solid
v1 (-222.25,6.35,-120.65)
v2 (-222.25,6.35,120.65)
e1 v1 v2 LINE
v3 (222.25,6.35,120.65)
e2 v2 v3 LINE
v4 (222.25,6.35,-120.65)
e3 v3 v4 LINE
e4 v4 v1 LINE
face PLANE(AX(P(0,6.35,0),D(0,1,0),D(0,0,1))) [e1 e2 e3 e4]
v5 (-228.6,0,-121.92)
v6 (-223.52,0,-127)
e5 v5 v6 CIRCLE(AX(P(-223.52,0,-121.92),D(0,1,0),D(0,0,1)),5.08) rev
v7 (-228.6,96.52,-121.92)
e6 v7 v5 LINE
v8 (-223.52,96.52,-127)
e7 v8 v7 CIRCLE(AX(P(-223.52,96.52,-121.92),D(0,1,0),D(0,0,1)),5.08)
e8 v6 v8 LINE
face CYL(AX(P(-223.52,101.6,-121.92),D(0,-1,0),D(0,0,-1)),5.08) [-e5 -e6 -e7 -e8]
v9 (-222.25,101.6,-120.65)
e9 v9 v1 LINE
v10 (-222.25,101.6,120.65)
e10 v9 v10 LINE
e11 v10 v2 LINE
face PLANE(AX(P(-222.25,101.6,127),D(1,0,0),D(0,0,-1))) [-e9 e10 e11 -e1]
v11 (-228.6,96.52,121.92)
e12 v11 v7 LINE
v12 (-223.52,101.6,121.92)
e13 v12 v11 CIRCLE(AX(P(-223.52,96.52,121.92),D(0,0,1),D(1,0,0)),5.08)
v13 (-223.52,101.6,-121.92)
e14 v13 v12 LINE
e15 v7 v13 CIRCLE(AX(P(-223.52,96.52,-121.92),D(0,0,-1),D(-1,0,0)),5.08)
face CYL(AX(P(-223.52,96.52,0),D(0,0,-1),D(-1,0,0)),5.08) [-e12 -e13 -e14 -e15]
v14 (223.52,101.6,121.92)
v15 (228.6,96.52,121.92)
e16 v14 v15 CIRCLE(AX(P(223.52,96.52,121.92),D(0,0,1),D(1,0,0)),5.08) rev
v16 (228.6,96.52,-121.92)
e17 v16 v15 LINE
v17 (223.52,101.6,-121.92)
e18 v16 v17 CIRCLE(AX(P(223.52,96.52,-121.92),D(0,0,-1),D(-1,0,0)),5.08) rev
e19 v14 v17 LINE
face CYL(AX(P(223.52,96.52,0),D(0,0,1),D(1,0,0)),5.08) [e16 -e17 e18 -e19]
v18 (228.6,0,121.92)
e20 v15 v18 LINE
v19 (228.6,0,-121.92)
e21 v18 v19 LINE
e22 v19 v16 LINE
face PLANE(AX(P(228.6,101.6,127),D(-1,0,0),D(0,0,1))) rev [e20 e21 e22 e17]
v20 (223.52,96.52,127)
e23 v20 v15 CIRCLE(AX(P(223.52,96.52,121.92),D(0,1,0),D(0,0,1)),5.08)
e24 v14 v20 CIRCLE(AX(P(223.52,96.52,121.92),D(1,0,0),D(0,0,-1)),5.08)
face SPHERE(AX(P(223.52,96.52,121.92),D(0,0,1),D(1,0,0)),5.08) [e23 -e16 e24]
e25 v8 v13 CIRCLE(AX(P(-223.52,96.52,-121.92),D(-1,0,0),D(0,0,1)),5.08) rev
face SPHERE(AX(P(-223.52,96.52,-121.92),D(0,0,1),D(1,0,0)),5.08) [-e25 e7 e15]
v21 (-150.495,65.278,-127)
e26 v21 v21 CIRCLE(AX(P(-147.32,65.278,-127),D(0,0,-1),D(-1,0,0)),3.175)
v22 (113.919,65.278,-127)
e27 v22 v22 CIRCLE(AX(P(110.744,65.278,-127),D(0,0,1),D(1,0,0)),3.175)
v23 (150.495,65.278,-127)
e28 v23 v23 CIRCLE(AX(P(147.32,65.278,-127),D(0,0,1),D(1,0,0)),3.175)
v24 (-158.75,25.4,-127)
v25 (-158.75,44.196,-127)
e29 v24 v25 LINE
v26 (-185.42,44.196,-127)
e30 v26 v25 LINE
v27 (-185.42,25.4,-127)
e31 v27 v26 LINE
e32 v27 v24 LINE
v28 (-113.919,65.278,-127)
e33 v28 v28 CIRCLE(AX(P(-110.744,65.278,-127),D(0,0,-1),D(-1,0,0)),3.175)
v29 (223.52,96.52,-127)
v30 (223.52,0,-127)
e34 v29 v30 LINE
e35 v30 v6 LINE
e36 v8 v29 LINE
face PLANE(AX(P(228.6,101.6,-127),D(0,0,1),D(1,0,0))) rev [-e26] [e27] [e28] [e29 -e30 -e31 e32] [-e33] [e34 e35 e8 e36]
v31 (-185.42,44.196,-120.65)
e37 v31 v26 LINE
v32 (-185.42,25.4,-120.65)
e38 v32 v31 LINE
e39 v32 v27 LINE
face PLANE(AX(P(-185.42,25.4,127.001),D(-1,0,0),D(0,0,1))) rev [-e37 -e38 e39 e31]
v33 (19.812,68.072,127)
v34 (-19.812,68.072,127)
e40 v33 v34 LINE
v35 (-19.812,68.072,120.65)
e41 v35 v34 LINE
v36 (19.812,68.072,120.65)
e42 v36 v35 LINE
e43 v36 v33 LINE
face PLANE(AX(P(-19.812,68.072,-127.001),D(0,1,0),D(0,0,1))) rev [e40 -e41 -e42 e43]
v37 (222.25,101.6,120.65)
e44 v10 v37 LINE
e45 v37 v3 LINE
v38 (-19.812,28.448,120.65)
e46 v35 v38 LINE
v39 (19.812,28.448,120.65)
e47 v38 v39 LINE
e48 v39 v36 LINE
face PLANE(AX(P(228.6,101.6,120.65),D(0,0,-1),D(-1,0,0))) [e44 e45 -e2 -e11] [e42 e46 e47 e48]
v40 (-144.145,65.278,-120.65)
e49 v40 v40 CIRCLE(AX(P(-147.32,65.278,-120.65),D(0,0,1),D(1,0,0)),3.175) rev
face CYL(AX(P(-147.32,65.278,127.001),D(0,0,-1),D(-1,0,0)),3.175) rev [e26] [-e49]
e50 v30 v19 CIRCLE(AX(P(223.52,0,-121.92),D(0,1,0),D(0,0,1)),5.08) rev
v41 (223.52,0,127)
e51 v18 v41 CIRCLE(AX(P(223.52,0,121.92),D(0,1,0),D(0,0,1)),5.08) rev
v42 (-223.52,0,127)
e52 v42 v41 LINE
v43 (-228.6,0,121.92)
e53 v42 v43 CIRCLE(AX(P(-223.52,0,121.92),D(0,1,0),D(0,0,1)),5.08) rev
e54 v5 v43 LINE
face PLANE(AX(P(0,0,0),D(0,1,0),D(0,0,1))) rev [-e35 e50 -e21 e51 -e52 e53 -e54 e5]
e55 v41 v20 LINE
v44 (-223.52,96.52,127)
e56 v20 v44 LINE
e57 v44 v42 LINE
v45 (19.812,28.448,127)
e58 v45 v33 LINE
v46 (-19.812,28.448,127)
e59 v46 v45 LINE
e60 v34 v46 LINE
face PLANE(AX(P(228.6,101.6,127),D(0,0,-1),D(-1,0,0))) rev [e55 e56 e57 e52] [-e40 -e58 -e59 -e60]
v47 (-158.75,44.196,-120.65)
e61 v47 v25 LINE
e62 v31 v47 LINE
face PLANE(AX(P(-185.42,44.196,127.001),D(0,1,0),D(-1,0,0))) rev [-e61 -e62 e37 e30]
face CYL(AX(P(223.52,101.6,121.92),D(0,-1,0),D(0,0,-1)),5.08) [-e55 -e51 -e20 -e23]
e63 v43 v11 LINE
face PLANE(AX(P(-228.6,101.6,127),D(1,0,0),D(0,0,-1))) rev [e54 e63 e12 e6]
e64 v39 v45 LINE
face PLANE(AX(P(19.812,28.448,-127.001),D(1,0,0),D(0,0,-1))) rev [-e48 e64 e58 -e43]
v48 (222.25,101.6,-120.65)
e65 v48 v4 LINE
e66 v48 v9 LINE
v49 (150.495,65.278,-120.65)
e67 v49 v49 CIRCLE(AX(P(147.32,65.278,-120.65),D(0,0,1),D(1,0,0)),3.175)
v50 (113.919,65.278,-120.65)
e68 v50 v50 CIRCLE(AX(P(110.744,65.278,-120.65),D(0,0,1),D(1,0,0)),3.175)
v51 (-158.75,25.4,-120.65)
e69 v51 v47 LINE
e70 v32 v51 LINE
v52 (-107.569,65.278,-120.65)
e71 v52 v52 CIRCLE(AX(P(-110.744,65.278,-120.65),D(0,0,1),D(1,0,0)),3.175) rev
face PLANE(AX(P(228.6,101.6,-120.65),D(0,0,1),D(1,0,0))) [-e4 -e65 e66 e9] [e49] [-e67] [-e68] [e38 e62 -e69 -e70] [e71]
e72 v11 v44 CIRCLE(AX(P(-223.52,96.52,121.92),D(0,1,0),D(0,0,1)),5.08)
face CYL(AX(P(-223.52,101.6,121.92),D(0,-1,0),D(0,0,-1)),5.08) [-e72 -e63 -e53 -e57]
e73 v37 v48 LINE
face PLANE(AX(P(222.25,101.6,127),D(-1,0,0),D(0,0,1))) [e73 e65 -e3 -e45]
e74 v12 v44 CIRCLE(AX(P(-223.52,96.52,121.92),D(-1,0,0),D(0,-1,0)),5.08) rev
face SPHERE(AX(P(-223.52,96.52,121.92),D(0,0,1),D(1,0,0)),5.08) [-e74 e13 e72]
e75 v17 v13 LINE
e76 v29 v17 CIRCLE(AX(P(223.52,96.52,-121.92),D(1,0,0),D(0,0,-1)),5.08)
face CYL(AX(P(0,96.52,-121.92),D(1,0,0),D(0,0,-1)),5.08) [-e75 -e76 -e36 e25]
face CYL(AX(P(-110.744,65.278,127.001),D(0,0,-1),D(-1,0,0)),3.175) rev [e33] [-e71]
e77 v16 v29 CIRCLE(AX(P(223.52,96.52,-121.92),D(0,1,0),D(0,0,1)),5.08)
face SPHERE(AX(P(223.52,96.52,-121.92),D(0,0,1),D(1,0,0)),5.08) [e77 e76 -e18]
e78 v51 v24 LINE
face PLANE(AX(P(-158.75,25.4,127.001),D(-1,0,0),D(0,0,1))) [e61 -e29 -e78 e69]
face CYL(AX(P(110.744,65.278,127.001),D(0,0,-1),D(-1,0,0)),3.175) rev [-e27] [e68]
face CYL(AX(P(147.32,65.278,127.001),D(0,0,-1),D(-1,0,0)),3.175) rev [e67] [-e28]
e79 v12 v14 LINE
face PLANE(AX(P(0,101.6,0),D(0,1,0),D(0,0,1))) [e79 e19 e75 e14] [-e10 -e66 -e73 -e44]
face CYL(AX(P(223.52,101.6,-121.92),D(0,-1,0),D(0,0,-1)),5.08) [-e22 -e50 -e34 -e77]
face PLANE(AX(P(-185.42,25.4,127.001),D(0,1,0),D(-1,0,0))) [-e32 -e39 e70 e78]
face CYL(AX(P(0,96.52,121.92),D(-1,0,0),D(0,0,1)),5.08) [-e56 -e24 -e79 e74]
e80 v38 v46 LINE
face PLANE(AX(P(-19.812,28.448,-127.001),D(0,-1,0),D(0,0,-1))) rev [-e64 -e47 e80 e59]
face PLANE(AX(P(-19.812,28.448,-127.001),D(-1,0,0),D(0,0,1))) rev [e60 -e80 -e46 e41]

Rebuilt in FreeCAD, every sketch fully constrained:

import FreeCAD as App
import Part
import Sketcher
from FreeCAD import Vector
Q = App.Units.Quantity


def edges_at(feature, points):
    """Names of the edges that pass closest to the given points."""
    edges = feature.Shape.Edges
    near = lambda p: min(range(len(edges)), key=lambda i: edges[i].distToShape(Part.Vertex(*p))[0])
    return sorted({f"Edge{near(p) + 1}" for p in points})


def faces_at(feature, points):
    """Names of the faces that lie closest to the given points."""
    faces = feature.Shape.Faces
    near = lambda p: min(range(len(faces)), key=lambda i: faces[i].distToShape(Part.Vertex(*p))[0])
    return sorted({f"Face{near(p) + 1}" for p in points})

doc = App.newDocument("Part")
body = doc.addObject("PartDesign::Body", "Body")

sketch1 = body.newObject("Sketcher::SketchObject", "Sketch")
sketch1.AttachmentSupport = (doc.getObject("XZ_Plane"), [""])
sketch1.MapMode = "FlatFace"
sketch1.addGeometry([
    Part.LineSegment(Vector(-229, -127, 0), Vector(-229, 127, 0)),
    Part.LineSegment(Vector(-229, 127, 0), Vector(229, 127, 0)),
    Part.LineSegment(Vector(229, 127, 0), Vector(229, -127, 0)),
    Part.LineSegment(Vector(229, -127, 0), Vector(-229, -127, 0)),
], False)
sketch1.addConstraint([
    Sketcher.Constraint("Coincident", 0, 2, 1, 1),
    Sketcher.Constraint("Coincident", 1, 2, 2, 1),
    Sketcher.Constraint("Coincident", 2, 2, 3, 1),
    Sketcher.Constraint("Coincident", 3, 2, 0, 1),
    Sketcher.Constraint("Vertical", 0),
    Sketcher.Constraint("Horizontal", 1),
    Sketcher.Constraint("Vertical", 2),
    Sketcher.Constraint("Horizontal", 3),
    Sketcher.Constraint("Symmetric", 0, 2, 2, 2, -1, 1),
    Sketcher.Constraint("DistanceX", 1, 1, 1, 2, Q("18 in")),
    Sketcher.Constraint("DistanceY", 0, 1, 0, 2, Q("10 in")),
])
pad1 = body.newObject("PartDesign::Pad", "Pad")
pad1.Profile = sketch1
pad1.Length = Q("4 in")
pad1.Reversed = True
doc.recompute()

thickness = body.newObject("PartDesign::Thickness", "Thickness")
thickness.Base = (pad1, faces_at(pad1, [(0, 101.6, 0)]))
thickness.Value = Q("0.25 in")
thickness.Reversed = True
thickness.Join = "Intersection"
doc.recompute()

fillet = body.newObject("PartDesign::Fillet", "Fillet")
fillet.Base = (thickness, edges_at(thickness, [
    (228.6, 101.6, 0),
    (0, 101.6, -127),
    (-228.6, 101.6, 0),
    (0, 101.6, 127),
    (-228.6, 50.8, -127),
    (228.6, 50.8, -127),
    (228.6, 50.8, 127),
    (-228.6, 50.8, 127),
]))
fillet.Radius = Q("0.2 in")

sketch2 = body.newObject("Sketcher::SketchObject", "Sketch001")
sketch2.AttachmentSupport = (doc.getObject("XY_Plane"), [""])
sketch2.MapMode = "FlatFace"
sketch2.AttachmentOffset = App.Placement(Vector(0, 0, 5 * 25.4), App.Rotation())
sketch2.addGeometry([
    Part.LineSegment(Vector(-20, 68, 0), Vector(-20, 28, 0)),
    Part.LineSegment(Vector(-20, 28, 0), Vector(20, 28, 0)),
    Part.LineSegment(Vector(20, 28, 0), Vector(20, 68, 0)),
    Part.LineSegment(Vector(20, 68, 0), Vector(-20, 68, 0)),
], False)
sketch2.addConstraint([
    Sketcher.Constraint("Coincident", 0, 2, 1, 1),
    Sketcher.Constraint("Coincident", 1, 2, 2, 1),
    Sketcher.Constraint("Coincident", 2, 2, 3, 1),
    Sketcher.Constraint("Coincident", 3, 2, 0, 1),
    Sketcher.Constraint("Vertical", 0),
    Sketcher.Constraint("Horizontal", 1),
    Sketcher.Constraint("Vertical", 2),
    Sketcher.Constraint("Horizontal", 3),
    Sketcher.Constraint("Equal", 3, 0),
    Sketcher.Constraint("DistanceX", 1, 1, 1, 2, Q("1.56 in")),
    Sketcher.Constraint("DistanceX", 0, 2, -1, 1, Q("0.78 in")),
    Sketcher.Constraint("DistanceY", -1, 1, 0, 2, Q("1.12 in")),
])
pocket1 = body.newObject("PartDesign::Pocket", "Pocket")
pocket1.Profile = sketch2
pocket1.Type = "UpToFirst"

sketch3 = body.newObject("Sketcher::SketchObject", "Sketch002")
sketch3.AttachmentSupport = (doc.getObject("XY_Plane"), [""])
sketch3.MapMode = "FlatFace"
sketch3.AttachmentOffset = App.Placement(Vector(0, 0, -5 * 25.4), App.Rotation())
sketch3.addGeometry(Part.Circle(Vector(-147.3, 65.3, 0), Vector(0, 0, 1), 3.2), False)
sketch3.addConstraint([
    Sketcher.Constraint("Diameter", 0, Q("0.25 in")),
    Sketcher.Constraint("DistanceX", 0, 3, -1, 1, Q("5.8 in")),
    Sketcher.Constraint("DistanceY", -1, 1, 0, 3, Q("2.57 in")),
])
pocket2 = body.newObject("PartDesign::Pocket", "Pocket001")
pocket2.Profile = sketch3
pocket2.Type = "UpToFirst"
pocket2.Reversed = True

sketch4 = body.newObject("Sketcher::SketchObject", "Sketch003")
sketch4.AttachmentSupport = (doc.getObject("XY_Plane"), [""])
sketch4.MapMode = "FlatFace"
sketch4.AttachmentOffset = App.Placement(Vector(0, 0, -5 * 25.4), App.Rotation())
sketch4.addGeometry(Part.Circle(Vector(-110.7, 65.3, 0), Vector(0, 0, 1), 3.2), False)
sketch4.addConstraint([
    Sketcher.Constraint("Diameter", 0, Q("0.25 in")),
    Sketcher.Constraint("DistanceX", 0, 3, -1, 1, Q("4.36 in")),
    Sketcher.Constraint("DistanceY", -1, 1, 0, 3, Q("2.57 in")),
])
pocket3 = body.newObject("PartDesign::Pocket", "Pocket002")
pocket3.Profile = sketch4
pocket3.Type = "UpToFirst"
pocket3.Reversed = True

sketch5 = body.newObject("Sketcher::SketchObject", "Sketch004")
sketch5.AttachmentSupport = (doc.getObject("XY_Plane"), [""])
sketch5.MapMode = "FlatFace"
sketch5.AttachmentOffset = App.Placement(Vector(0, 0, -5 * 25.4), App.Rotation())
sketch5.addGeometry(Part.Circle(Vector(147.3, 65.3, 0), Vector(0, 0, 1), 3.2), False)
sketch5.addConstraint([
    Sketcher.Constraint("Diameter", 0, Q("0.25 in")),
    Sketcher.Constraint("DistanceX", -1, 1, 0, 3, Q("5.8 in")),
    Sketcher.Constraint("DistanceY", -1, 1, 0, 3, Q("2.57 in")),
])
pocket4 = body.newObject("PartDesign::Pocket", "Pocket003")
pocket4.Profile = sketch5
pocket4.Type = "UpToFirst"
pocket4.Reversed = True

sketch6 = body.newObject("Sketcher::SketchObject", "Sketch005")
sketch6.AttachmentSupport = (doc.getObject("XY_Plane"), [""])
sketch6.MapMode = "FlatFace"
sketch6.AttachmentOffset = App.Placement(Vector(0, 0, -5 * 25.4), App.Rotation())
sketch6.addGeometry(Part.Circle(Vector(110.7, 65.3, 0), Vector(0, 0, 1), 3.2), False)
sketch6.addConstraint([
    Sketcher.Constraint("Diameter", 0, Q("0.25 in")),
    Sketcher.Constraint("DistanceX", -1, 1, 0, 3, Q("4.36 in")),
    Sketcher.Constraint("DistanceY", -1, 1, 0, 3, Q("2.57 in")),
])
pocket5 = body.newObject("PartDesign::Pocket", "Pocket004")
pocket5.Profile = sketch6
pocket5.Type = "UpToFirst"
pocket5.Reversed = True

sketch7 = body.newObject("Sketcher::SketchObject", "Sketch006")
sketch7.AttachmentSupport = (doc.getObject("XY_Plane"), [""])
sketch7.MapMode = "FlatFace"
sketch7.AttachmentOffset = App.Placement(Vector(0, 0, -5 * 25.4), App.Rotation())
sketch7.addGeometry([
    Part.LineSegment(Vector(-159, 44, 0), Vector(-159, 25, 0)),
    Part.LineSegment(Vector(-159, 25, 0), Vector(-185, 25, 0)),
    Part.LineSegment(Vector(-185, 25, 0), Vector(-185, 44, 0)),
    Part.LineSegment(Vector(-185, 44, 0), Vector(-159, 44, 0)),
], False)
sketch7.addConstraint([
    Sketcher.Constraint("Coincident", 0, 2, 1, 1),
    Sketcher.Constraint("Coincident", 1, 2, 2, 1),
    Sketcher.Constraint("Coincident", 2, 2, 3, 1),
    Sketcher.Constraint("Coincident", 3, 2, 0, 1),
    Sketcher.Constraint("Vertical", 0),
    Sketcher.Constraint("Horizontal", 1),
    Sketcher.Constraint("Vertical", 2),
    Sketcher.Constraint("Horizontal", 3),
    Sketcher.Constraint("DistanceY", -1, 1, 0, 2, Q("1 in")),
    Sketcher.Constraint("DistanceX", 1, 2, 1, 1, Q("1.05 in")),
    Sketcher.Constraint("DistanceY", 0, 2, 0, 1, Q("0.74 in")),
    Sketcher.Constraint("DistanceX", 1, 2, -1, 1, Q("7.3 in")),
])
pocket6 = body.newObject("PartDesign::Pocket", "Pocket005")
pocket6.Profile = sketch7
pocket6.Type = "UpToFirst"
pocket6.Reversed = True

doc.recompute()
